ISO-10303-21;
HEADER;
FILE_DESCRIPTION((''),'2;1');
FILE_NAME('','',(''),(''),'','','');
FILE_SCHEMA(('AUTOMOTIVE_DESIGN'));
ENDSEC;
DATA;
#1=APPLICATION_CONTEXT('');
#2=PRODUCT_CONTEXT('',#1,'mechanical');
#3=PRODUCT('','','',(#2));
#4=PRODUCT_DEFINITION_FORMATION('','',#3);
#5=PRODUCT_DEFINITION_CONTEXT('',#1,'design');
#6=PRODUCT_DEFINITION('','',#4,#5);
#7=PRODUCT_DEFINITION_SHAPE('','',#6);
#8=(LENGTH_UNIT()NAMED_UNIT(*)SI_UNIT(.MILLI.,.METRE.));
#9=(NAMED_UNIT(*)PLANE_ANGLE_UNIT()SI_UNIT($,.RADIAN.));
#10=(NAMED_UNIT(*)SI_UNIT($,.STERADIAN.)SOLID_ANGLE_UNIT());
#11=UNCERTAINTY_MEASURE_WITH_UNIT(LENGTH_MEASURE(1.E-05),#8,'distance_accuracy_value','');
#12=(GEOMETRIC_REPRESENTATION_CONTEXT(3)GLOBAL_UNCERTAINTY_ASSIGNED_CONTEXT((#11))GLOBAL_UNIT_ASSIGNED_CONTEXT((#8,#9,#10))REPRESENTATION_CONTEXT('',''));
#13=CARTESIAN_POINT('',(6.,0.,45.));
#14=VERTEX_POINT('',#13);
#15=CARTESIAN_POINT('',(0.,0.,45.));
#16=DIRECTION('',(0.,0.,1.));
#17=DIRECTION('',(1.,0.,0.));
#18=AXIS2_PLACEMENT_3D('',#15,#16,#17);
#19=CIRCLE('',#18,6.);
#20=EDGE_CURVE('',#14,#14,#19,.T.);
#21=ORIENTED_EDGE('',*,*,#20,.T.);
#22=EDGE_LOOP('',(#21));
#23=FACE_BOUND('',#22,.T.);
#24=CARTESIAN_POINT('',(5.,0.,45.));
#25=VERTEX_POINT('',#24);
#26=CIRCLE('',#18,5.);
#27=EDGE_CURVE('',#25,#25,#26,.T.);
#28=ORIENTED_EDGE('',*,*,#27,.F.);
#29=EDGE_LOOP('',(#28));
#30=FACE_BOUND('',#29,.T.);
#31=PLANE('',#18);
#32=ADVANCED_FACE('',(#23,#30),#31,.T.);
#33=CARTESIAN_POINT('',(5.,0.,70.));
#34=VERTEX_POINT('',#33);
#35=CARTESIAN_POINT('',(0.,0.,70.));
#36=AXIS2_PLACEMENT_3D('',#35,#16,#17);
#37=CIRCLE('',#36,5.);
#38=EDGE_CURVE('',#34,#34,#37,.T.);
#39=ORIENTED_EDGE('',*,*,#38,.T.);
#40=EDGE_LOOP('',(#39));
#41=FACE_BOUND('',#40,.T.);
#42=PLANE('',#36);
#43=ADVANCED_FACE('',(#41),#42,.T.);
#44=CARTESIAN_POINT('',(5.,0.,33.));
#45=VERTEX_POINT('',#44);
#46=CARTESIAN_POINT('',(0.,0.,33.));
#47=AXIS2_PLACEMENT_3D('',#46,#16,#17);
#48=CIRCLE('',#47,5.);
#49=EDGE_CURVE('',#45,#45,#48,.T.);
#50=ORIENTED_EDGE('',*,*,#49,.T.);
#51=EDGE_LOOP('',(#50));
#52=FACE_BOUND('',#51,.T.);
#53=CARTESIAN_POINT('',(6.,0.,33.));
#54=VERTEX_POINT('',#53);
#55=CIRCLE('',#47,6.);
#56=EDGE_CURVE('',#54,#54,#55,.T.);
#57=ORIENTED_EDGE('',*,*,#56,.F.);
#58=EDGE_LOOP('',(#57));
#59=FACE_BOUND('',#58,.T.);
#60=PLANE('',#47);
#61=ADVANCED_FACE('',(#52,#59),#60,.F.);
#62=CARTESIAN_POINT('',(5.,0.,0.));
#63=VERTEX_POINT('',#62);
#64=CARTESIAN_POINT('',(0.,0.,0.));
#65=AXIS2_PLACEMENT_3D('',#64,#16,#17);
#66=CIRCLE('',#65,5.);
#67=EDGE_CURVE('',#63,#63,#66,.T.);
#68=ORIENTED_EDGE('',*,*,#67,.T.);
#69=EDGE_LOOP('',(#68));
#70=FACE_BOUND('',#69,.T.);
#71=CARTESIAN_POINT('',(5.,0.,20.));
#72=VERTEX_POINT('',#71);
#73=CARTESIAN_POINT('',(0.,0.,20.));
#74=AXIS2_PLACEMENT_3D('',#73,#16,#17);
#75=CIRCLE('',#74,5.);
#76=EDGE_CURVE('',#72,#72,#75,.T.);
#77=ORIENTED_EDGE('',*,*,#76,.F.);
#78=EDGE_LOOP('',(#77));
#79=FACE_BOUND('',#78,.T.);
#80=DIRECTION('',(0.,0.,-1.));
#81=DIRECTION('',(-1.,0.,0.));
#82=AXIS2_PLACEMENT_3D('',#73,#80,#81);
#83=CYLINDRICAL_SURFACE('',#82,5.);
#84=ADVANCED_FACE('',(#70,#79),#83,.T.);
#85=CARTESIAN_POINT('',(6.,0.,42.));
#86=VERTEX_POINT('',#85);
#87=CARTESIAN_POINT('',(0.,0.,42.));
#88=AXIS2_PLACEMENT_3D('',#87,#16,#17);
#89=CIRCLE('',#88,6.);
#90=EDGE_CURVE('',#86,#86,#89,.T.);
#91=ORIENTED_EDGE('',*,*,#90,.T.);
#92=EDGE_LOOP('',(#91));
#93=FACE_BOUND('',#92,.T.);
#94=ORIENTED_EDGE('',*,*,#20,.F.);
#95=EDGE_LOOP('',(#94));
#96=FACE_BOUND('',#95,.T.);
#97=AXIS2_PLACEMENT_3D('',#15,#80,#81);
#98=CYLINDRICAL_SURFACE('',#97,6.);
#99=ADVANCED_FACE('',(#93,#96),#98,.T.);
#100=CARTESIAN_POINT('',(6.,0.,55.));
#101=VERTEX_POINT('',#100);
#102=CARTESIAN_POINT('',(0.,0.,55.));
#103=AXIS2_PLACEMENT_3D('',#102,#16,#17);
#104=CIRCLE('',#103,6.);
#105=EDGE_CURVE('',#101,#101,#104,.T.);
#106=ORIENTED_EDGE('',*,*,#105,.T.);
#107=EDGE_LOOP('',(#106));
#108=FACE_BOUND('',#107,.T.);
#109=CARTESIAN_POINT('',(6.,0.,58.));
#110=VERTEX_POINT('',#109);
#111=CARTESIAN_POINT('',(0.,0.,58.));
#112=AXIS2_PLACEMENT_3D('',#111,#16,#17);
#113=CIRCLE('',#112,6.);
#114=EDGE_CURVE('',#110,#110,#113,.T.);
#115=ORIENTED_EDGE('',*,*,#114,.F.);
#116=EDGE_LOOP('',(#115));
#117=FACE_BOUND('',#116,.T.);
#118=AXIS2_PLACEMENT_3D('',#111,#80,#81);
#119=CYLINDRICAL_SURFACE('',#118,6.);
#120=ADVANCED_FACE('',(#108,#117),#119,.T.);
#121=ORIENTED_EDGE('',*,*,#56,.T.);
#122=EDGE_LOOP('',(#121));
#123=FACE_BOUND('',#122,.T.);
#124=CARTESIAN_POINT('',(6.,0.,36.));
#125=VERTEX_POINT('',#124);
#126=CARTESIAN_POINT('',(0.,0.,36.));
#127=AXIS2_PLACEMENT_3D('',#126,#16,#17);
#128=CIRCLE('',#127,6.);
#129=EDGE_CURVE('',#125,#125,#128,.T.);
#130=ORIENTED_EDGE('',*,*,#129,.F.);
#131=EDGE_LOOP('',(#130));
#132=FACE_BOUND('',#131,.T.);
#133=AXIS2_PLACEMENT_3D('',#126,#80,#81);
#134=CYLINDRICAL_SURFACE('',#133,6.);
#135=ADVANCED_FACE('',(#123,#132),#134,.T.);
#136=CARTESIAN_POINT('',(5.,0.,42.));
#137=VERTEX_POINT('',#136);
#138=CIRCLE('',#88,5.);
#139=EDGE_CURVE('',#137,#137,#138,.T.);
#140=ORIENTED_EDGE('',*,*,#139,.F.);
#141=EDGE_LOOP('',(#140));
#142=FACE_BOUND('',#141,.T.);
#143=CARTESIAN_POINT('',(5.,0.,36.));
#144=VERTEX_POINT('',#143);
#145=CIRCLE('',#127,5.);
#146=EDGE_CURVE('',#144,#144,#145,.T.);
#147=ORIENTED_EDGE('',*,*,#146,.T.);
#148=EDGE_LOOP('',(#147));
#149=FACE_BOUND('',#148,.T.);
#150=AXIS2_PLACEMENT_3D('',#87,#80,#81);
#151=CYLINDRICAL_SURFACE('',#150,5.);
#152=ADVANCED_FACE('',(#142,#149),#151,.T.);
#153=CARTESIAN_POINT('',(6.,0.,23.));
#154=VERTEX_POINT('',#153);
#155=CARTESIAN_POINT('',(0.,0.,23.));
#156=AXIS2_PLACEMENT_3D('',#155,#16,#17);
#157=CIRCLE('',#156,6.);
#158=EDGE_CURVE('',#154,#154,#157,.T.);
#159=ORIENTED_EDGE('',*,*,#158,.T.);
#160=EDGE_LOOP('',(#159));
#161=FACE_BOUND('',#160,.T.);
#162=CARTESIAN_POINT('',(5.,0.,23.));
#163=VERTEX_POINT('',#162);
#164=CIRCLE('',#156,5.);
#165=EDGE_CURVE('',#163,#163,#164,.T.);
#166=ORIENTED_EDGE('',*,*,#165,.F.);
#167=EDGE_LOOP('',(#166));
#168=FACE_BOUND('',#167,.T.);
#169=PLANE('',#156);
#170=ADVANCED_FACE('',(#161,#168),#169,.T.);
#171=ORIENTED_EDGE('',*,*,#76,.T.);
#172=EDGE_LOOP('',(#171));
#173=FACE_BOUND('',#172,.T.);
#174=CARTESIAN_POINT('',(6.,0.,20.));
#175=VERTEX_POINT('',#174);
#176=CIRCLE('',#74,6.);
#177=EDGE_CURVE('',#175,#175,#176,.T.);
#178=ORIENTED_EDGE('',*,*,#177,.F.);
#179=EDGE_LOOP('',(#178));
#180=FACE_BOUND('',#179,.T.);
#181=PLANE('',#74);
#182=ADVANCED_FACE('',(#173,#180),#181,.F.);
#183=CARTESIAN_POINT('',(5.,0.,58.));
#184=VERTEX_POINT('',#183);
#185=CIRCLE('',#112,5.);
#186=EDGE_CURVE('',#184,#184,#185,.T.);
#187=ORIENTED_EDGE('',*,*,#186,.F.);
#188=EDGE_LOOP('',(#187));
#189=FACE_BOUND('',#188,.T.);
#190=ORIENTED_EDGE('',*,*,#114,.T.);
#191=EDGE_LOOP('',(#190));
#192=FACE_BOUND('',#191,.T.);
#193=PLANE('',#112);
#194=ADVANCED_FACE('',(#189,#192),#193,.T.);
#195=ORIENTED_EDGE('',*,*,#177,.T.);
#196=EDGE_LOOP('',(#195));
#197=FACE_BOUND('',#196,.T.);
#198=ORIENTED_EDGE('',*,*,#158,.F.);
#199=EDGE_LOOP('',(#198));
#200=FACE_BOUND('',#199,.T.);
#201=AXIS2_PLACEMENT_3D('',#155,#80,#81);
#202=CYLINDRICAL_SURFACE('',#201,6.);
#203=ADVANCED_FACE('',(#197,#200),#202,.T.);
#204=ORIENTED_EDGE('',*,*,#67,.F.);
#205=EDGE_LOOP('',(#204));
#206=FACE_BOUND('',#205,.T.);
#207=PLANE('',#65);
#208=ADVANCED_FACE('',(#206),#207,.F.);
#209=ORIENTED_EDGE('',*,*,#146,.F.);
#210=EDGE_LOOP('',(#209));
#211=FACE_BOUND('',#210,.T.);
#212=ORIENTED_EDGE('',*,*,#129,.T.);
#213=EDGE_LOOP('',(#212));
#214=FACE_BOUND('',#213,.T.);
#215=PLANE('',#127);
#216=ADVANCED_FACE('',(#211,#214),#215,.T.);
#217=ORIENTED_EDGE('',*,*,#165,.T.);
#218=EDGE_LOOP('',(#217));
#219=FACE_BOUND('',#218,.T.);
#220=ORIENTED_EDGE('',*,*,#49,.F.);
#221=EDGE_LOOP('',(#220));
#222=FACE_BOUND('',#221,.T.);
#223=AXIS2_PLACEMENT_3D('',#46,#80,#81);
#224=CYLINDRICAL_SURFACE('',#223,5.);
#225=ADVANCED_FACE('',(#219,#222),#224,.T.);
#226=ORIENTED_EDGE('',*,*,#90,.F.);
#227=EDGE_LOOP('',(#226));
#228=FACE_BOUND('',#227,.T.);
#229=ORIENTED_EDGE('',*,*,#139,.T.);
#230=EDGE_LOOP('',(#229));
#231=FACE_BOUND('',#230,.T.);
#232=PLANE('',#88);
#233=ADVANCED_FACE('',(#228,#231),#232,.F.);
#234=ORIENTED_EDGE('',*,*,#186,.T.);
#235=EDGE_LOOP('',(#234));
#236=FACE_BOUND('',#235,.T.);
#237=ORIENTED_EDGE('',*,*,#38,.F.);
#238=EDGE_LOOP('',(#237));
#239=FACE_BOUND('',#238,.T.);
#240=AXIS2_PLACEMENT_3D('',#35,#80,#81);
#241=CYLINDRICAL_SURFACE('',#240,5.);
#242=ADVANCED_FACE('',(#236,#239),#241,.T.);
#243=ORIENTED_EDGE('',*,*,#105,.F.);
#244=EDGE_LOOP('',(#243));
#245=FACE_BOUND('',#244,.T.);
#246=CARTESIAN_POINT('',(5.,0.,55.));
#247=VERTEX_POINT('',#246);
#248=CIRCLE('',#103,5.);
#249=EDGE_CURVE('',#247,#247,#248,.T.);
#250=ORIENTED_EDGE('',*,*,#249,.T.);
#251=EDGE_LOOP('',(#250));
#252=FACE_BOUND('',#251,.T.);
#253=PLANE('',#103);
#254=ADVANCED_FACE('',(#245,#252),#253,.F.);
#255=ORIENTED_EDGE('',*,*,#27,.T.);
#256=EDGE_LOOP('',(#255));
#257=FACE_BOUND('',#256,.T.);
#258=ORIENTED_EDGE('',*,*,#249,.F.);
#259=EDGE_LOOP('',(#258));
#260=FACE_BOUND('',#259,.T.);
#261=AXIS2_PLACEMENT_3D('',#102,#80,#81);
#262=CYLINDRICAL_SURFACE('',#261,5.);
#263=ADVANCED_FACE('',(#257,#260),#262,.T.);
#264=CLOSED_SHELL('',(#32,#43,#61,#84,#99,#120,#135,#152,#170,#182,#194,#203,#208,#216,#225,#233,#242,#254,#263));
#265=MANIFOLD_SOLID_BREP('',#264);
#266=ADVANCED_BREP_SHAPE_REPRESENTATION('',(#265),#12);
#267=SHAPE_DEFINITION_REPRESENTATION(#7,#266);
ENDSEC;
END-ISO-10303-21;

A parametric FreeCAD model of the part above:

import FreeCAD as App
import Part
import Sketcher
from FreeCAD import Vector
Q = App.Units.Quantity

doc = App.newDocument("Part")
body = doc.addObject("PartDesign::Body", "Body")

sketch1 = body.newObject("Sketcher::SketchObject", "Sketch")
sketch1.AttachmentSupport = (doc.getObject("XY_Plane"), [""])
sketch1.MapMode = "FlatFace"
sketch1.addGeometry(Part.Circle(Vector(0, 0, 0), Vector(0, 0, 1), 5), False)
sketch1.addConstraint(Sketcher.Constraint("Coincident", 0, 3, -1, 1))
sketch1.addConstraint(Sketcher.Constraint("Diameter", 0, Q("10 mm")))
pad1 = body.newObject("PartDesign::Pad", "Pad")
pad1.Profile = sketch1
pad1.Length = 20

sketch2 = body.newObject("Sketcher::SketchObject", "Sketch001")
sketch2.AttachmentSupport = (doc.getObject("XY_Plane"), [""])
sketch2.MapMode = "FlatFace"
sketch2.AttachmentOffset = App.Placement(Vector(0, 0, 20), App.Rotation())
sketch2.addGeometry(Part.Circle(Vector(0, 0, 0), Vector(0, 0, 1), 6), False)
sketch2.addConstraint(Sketcher.Constraint("Coincident", 0, 3, -1, 1))
sketch2.addConstraint(Sketcher.Constraint("Diameter", 0, Q("12 mm")))
pad2 = body.newObject("PartDesign::Pad", "Pad001")
pad2.Profile = sketch2
pad2.Length = 3

sketch3 = body.newObject("Sketcher::SketchObject", "Sketch002")
sketch3.AttachmentSupport = (doc.getObject("XY_Plane"), [""])
sketch3.MapMode = "FlatFace"
sketch3.AttachmentOffset = App.Placement(Vector(0, 0, 23), App.Rotation())
sketch3.addGeometry(Part.Circle(Vector(0, 0, 0), Vector(0, 0, 1), 5), False)
sketch3.addConstraint(Sketcher.Constraint("Coincident", 0, 3, -1, 1))
sketch3.addConstraint(Sketcher.Constraint("Diameter", 0, Q("10 mm")))
pad3 = body.newObject("PartDesign::Pad", "Pad002")
pad3.Profile = sketch3
pad3.Length = 10

sketch4 = body.newObject("Sketcher::SketchObject", "Sketch003")
sketch4.AttachmentSupport = (doc.getObject("XY_Plane"), [""])
sketch4.MapMode = "FlatFace"
sketch4.AttachmentOffset = App.Placement(Vector(0, 0, 33), App.Rotation())
sketch4.addGeometry(Part.Circle(Vector(0, 0, 0), Vector(0, 0, 1), 6), False)
sketch4.addConstraint(Sketcher.Constraint("Coincident", 0, 3, -1, 1))
sketch4.addConstraint(Sketcher.Constraint("Diameter", 0, Q("12 mm")))
pad4 = body.newObject("PartDesign::Pad", "Pad003")
pad4.Profile = sketch4
pad4.Length = 3

sketch5 = body.newObject("Sketcher::SketchObject", "Sketch004")
sketch5.AttachmentSupport = (doc.getObject("XY_Plane"), [""])
sketch5.MapMode = "FlatFace"
sketch5.AttachmentOffset = App.Placement(Vector(0, 0, 36), App.Rotation())
sketch5.addGeometry(Part.Circle(Vector(0, 0, 0), Vector(0, 0, 1), 5), False)
sketch5.addConstraint(Sketcher.Constraint("Coincident", 0, 3, -1, 1))
sketch5.addConstraint(Sketcher.Constraint("Diameter", 0, Q("10 mm")))
pad5 = body.newObject("PartDesign::Pad", "Pad004")
pad5.Profile = sketch5
pad5.Length = 6

sketch6 = body.newObject("Sketcher::SketchObject", "Sketch005")
sketch6.AttachmentSupport = (doc.getObject("XY_Plane"), [""])
sketch6.MapMode = "FlatFace"
sketch6.AttachmentOffset = App.Placement(Vector(0, 0, 42), App.Rotation())
sketch6.addGeometry(Part.Circle(Vector(0, 0, 0), Vector(0, 0, 1), 6), False)
sketch6.addConstraint(Sketcher.Constraint("Coincident", 0, 3, -1, 1))
sketch6.addConstraint(Sketcher.Constraint("Diameter", 0, Q("12 mm")))
pad6 = body.newObject("PartDesign::Pad", "Pad005")
pad6.Profile = sketch6
pad6.Length = 3

sketch7 = body.newObject("Sketcher::SketchObject", "Sketch006")
sketch7.AttachmentSupport = (doc.getObject("XY_Plane"), [""])
sketch7.MapMode = "FlatFace"
sketch7.AttachmentOffset = App.Placement(Vector(0, 0, 45), App.Rotation())
sketch7.addGeometry(Part.Circle(Vector(0, 0, 0), Vector(0, 0, 1), 5), False)
sketch7.addConstraint(Sketcher.Constraint("Coincident", 0, 3, -1, 1))
sketch7.addConstraint(Sketcher.Constraint("Diameter", 0, Q("10 mm")))
pad7 = body.newObject("PartDesign::Pad", "Pad006")
pad7.Profile = sketch7
pad7.Length = 10

sketch8 = body.newObject("Sketcher::SketchObject", "Sketch007")
sketch8.AttachmentSupport = (doc.getObject("XY_Plane"), [""])
sketch8.MapMode = "FlatFace"
sketch8.AttachmentOffset = App.Placement(Vector(0, 0, 55), App.Rotation())
sketch8.addGeometry(Part.Circle(Vector(0, 0, 0), Vector(0, 0, 1), 6), False)
sketch8.addConstraint(Sketcher.Constraint("Coincident", 0, 3, -1, 1))
sketch8.addConstraint(Sketcher.Constraint("Diameter", 0, Q("12 mm")))
pad8 = body.newObject("PartDesign::Pad", "Pad007")
pad8.Profile = sketch8
pad8.Length = 3

sketch9 = body.newObject("Sketcher::SketchObject", "Sketch008")
sketch9.AttachmentSupport = (doc.getObject("XY_Plane"), [""])
sketch9.MapMode = "FlatFace"
sketch9.AttachmentOffset = App.Placement(Vector(0, 0, 58), App.Rotation())
sketch9.addGeometry(Part.Circle(Vector(0, 0, 0), Vector(0, 0, 1), 5), False)
sketch9.addConstraint(Sketcher.Constraint("Coincident", 0, 3, -1, 1))
sketch9.addConstraint(Sketcher.Constraint("Diameter", 0, Q("10 mm")))
pad9 = body.newObject("PartDesign::Pad", "Pad008")
pad9.Profile = sketch9
pad9.Length = 12

doc.recompute()
